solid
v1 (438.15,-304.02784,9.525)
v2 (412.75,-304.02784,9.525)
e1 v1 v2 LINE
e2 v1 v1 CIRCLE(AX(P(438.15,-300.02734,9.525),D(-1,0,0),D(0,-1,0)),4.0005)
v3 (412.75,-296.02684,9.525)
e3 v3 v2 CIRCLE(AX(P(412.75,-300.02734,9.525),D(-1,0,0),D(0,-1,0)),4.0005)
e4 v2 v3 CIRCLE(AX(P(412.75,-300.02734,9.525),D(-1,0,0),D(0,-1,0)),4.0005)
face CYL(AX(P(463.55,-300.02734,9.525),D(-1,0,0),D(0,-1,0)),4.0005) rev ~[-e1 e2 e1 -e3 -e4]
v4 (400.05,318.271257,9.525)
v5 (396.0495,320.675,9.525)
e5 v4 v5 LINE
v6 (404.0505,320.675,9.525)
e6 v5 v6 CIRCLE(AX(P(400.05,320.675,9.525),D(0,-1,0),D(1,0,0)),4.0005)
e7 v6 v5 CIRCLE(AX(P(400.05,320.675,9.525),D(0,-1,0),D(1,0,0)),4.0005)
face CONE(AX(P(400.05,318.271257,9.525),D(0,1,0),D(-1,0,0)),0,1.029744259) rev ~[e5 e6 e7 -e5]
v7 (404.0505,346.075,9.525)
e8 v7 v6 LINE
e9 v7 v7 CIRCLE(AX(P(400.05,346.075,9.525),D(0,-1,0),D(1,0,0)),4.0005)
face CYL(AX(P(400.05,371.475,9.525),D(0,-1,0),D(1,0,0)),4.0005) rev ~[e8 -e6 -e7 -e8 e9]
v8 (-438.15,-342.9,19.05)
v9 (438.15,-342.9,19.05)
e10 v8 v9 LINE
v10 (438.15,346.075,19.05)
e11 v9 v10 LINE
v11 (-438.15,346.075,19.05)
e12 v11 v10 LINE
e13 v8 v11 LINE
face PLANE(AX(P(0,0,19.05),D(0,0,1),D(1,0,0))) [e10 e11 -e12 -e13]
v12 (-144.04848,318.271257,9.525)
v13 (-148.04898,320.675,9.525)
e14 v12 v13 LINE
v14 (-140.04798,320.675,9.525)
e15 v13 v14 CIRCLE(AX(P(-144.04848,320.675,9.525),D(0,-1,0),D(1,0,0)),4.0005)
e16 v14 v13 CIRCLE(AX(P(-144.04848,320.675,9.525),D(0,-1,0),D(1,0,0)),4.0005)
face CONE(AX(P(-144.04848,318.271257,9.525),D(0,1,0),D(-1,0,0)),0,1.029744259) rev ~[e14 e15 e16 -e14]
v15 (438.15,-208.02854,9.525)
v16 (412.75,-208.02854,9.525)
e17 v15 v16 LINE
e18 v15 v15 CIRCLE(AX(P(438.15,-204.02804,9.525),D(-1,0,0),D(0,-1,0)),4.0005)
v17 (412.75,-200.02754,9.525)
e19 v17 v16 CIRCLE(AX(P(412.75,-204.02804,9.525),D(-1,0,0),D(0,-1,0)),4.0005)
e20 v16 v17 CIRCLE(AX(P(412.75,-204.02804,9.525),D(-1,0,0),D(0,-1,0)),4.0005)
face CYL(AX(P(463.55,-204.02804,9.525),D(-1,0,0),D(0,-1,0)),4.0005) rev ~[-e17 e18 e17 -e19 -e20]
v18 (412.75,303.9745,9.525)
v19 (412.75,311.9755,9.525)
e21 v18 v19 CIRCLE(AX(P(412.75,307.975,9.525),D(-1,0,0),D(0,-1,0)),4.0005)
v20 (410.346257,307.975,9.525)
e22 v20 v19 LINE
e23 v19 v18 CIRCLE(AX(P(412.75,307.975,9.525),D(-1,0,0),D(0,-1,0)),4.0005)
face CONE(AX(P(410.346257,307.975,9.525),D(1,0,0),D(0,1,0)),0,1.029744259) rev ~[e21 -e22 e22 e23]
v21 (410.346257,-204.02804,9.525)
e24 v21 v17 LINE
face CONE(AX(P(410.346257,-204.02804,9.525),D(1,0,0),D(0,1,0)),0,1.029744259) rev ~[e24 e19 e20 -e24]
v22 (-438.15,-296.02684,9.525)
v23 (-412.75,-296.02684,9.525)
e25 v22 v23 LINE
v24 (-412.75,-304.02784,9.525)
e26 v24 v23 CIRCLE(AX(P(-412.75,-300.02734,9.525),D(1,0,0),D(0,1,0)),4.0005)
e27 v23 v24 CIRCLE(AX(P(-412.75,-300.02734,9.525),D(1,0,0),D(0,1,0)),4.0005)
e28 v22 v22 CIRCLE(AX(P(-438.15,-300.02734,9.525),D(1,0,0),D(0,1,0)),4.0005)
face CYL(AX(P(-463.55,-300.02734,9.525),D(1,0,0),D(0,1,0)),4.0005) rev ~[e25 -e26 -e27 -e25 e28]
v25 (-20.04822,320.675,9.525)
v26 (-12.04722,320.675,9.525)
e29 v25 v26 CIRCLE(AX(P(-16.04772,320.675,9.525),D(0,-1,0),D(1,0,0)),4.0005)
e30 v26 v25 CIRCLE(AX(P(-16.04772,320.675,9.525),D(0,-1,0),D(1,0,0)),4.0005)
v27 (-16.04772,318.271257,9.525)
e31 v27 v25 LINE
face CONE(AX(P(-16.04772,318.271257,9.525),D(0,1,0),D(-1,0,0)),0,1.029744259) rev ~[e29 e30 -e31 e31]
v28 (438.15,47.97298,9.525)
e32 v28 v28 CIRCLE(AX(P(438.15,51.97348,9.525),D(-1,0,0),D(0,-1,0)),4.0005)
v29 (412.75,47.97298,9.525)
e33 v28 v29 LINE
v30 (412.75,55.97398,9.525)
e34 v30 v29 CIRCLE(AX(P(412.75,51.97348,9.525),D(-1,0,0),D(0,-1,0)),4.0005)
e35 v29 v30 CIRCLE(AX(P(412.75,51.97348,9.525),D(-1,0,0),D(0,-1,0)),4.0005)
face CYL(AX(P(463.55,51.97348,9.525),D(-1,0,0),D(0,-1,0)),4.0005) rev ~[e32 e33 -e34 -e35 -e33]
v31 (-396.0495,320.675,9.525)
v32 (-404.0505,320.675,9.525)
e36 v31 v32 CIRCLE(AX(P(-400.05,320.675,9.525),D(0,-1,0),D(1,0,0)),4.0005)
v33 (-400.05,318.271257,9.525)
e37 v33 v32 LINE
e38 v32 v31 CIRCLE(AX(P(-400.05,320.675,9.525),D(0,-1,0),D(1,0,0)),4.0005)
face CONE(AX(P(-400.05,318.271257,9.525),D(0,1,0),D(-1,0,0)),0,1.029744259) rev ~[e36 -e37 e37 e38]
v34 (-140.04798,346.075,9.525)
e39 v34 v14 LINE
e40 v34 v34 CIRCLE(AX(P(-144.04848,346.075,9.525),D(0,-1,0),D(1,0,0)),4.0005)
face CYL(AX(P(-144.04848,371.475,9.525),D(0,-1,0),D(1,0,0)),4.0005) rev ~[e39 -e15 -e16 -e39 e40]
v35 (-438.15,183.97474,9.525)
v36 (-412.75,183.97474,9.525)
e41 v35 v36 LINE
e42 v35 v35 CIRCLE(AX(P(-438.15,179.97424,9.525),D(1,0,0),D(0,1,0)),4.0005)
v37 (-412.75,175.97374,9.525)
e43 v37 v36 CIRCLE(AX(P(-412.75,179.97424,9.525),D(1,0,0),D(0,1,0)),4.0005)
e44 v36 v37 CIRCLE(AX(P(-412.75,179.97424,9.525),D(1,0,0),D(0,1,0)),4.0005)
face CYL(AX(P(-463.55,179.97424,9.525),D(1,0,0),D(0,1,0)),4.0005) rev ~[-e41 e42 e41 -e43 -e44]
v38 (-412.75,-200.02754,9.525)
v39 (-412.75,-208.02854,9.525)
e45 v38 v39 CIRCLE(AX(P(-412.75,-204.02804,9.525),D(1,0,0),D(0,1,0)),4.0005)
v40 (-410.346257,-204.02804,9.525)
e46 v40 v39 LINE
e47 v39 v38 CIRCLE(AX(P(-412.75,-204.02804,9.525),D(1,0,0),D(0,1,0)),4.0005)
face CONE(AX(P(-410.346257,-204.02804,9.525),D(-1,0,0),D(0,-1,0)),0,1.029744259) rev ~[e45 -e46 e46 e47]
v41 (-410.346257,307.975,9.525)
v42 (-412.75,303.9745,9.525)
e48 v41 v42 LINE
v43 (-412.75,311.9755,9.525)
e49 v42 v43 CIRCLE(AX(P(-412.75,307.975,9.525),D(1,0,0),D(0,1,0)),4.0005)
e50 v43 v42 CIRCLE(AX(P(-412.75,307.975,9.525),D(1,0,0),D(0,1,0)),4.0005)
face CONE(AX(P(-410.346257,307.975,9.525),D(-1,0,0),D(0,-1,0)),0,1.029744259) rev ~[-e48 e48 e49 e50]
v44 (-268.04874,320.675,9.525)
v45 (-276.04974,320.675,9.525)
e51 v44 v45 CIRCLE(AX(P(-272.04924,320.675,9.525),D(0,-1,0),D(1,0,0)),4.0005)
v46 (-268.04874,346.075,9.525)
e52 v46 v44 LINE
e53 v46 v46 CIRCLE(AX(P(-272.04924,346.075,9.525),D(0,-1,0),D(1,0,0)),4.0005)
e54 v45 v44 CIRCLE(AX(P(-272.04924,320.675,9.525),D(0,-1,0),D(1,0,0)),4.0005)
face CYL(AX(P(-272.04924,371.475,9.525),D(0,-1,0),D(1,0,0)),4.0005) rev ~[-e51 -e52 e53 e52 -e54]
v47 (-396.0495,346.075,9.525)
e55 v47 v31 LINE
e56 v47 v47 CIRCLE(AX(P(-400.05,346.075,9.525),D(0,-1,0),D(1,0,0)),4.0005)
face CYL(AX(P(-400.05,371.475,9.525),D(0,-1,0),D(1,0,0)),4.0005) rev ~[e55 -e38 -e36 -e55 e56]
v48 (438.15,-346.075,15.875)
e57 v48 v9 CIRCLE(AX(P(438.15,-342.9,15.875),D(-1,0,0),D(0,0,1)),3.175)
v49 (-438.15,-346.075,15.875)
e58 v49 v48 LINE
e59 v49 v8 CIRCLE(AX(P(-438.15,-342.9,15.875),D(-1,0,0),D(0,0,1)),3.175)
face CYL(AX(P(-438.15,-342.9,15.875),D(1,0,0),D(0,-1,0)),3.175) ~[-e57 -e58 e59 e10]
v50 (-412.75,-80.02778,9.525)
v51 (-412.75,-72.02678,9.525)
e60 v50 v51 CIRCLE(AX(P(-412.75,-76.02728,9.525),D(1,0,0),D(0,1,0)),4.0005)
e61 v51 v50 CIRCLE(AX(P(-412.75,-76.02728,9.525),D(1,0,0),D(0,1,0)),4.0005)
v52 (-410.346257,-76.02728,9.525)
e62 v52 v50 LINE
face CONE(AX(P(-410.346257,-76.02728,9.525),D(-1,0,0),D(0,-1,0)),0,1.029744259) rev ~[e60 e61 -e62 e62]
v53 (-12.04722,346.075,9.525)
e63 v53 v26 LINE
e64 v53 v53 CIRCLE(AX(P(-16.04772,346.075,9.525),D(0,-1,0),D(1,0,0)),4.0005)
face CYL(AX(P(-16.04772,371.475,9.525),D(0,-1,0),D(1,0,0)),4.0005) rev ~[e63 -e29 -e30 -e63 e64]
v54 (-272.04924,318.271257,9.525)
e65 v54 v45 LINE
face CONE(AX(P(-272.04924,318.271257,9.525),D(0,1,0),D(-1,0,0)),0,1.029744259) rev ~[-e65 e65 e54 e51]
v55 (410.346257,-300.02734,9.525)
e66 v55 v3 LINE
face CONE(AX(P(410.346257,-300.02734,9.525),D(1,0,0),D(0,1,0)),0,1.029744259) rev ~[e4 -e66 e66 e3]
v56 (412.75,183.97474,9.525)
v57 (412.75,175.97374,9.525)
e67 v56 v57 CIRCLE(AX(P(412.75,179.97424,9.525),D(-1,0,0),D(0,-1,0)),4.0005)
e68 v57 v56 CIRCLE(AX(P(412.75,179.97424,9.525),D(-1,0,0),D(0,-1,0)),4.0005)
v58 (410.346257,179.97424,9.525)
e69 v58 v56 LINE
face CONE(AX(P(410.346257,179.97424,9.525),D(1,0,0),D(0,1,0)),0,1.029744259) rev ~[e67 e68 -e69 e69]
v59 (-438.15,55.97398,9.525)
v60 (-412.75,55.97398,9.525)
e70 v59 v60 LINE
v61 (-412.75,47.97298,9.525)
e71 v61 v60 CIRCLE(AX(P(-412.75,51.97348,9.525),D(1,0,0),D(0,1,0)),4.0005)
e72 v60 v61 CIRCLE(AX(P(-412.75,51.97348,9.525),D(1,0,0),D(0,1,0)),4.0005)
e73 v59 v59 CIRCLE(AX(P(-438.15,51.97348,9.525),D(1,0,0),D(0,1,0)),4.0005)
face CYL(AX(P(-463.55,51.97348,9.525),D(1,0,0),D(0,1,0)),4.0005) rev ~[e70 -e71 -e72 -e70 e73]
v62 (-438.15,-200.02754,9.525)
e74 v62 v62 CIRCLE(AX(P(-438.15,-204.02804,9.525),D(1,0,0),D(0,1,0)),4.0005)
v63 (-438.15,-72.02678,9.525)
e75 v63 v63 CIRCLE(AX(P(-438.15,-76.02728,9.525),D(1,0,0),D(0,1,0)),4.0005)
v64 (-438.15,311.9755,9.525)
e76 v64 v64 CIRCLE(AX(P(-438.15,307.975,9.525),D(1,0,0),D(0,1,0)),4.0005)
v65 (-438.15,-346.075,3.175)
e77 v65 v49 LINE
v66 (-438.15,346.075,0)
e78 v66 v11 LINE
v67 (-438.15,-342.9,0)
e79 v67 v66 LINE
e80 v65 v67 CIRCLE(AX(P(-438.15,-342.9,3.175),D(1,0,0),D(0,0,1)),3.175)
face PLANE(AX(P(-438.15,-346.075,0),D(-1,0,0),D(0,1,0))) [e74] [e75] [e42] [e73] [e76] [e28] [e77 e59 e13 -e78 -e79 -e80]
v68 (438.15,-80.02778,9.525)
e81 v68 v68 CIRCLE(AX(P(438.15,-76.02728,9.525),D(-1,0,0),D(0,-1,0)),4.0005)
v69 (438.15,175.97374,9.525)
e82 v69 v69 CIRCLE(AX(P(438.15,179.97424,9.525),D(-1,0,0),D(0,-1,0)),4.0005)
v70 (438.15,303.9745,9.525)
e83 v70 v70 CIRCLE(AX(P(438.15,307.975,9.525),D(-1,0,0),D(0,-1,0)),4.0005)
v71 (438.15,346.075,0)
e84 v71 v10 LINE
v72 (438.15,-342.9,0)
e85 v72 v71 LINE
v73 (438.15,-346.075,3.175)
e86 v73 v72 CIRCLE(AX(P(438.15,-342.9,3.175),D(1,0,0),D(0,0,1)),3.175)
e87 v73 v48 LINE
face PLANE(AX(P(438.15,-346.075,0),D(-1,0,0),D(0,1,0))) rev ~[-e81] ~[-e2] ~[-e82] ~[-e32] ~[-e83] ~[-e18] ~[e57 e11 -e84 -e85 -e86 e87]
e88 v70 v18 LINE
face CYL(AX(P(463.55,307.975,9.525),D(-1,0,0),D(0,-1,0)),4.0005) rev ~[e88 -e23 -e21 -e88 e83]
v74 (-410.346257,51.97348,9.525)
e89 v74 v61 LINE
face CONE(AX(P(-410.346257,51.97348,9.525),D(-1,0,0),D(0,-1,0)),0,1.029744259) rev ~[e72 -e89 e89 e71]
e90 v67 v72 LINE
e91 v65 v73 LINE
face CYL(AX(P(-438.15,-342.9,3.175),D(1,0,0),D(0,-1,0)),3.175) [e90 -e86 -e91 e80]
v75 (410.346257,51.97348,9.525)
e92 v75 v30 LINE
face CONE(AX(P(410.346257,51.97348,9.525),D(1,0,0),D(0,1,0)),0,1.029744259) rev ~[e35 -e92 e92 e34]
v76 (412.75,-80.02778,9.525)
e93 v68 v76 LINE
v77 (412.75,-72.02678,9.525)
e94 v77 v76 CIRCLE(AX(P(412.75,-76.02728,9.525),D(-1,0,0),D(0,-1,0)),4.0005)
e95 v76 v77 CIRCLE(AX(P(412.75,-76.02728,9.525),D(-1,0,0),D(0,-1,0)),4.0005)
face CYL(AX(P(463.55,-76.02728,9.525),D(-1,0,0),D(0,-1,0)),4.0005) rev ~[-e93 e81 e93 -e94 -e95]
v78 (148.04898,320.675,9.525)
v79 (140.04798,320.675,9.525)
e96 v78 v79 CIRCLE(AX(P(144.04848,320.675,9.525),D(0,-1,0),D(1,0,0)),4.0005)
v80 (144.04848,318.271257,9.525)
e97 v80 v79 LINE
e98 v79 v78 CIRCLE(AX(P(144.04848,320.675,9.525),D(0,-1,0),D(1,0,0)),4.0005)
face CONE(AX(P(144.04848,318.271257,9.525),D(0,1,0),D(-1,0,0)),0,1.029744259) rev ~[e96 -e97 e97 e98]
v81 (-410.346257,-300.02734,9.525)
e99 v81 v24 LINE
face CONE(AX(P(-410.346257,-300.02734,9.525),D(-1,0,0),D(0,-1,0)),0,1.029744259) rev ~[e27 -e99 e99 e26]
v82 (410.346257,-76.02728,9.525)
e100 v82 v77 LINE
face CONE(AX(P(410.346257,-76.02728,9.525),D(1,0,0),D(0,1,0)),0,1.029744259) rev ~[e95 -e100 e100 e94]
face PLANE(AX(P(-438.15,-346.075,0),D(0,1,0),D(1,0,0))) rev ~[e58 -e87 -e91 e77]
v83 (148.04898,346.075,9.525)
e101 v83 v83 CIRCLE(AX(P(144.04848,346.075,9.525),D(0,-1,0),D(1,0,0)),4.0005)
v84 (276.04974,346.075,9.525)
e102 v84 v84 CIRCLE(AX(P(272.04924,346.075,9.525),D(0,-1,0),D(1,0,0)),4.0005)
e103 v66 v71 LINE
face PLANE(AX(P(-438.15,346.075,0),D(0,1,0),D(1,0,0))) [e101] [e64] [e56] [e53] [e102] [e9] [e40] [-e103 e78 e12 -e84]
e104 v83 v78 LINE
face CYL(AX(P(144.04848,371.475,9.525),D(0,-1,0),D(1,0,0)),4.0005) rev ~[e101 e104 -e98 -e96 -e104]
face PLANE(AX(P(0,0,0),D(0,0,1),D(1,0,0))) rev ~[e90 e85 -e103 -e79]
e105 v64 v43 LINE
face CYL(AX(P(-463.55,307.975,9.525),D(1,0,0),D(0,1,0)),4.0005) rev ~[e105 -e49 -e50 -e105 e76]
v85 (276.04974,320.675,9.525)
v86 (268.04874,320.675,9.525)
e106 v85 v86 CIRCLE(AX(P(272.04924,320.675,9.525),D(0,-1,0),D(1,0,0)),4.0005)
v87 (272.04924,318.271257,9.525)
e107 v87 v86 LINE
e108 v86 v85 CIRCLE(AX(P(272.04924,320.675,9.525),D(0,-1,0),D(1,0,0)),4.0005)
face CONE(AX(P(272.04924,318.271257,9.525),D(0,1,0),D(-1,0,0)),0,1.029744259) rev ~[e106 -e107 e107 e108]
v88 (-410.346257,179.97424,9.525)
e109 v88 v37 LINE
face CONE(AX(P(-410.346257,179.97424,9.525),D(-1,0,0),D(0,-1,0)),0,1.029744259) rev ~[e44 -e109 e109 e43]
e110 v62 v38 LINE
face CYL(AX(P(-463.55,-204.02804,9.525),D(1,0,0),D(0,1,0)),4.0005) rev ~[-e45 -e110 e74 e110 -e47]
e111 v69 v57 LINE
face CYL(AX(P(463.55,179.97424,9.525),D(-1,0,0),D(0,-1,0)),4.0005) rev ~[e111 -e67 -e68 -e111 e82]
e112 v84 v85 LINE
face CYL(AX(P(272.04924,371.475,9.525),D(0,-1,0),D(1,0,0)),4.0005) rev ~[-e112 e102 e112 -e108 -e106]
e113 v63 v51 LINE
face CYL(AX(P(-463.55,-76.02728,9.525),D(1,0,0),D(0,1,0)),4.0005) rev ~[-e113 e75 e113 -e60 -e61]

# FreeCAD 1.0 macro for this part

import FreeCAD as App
import Part
import Sketcher
Q = App.Units.Quantity


def edges_at(feature, points):
    """Names of the edges that pass closest to the given points."""
    edges = feature.Shape.Edges
    near = lambda p: min(range(len(edges)), key=lambda i: edges[i].distToShape(Part.Vertex(*p))[0])
    return sorted({f"Edge{near(p) + 1}" for p in points})

doc = App.newDocument("Part")
body = doc.addObject("PartDesign::Body", "Body")

sketch1 = body.newObject("Sketcher::SketchObject", "Sketch")
sketch1.AttachmentSupport = (doc.getObject("XY_Plane"), [""])
sketch1.MapMode = "FlatFace"
sketch1.addGeometry([
    Part.LineSegment(App.Vector(-438, 346, 0), App.Vector(-438, -346, 0)),
    Part.LineSegment(App.Vector(-438, -346, 0), App.Vector(438, -346, 0)),
    Part.LineSegment(App.Vector(438, -346, 0), App.Vector(438, 346, 0)),
    Part.LineSegment(App.Vector(438, 346, 0), App.Vector(-438, 346, 0)),
], False)
sketch1.addConstraint([
    Sketcher.Constraint("Coincident", 0, 2, 1, 1),
    Sketcher.Constraint("Coincident", 1, 2, 2, 1),
    Sketcher.Constraint("Coincident", 2, 2, 3, 1),
    Sketcher.Constraint("Coincident", 3, 2, 0, 1),
    Sketcher.Constraint("Vertical", 0),
    Sketcher.Constraint("Horizontal", 1),
    Sketcher.Constraint("Vertical", 2),
    Sketcher.Constraint("Horizontal", 3),
    Sketcher.Constraint("Symmetric", 0, 2, 2, 2, -1, 1),
    Sketcher.Constraint("DistanceX", 1, 1, 1, 2, Q("34.5 in")),
    Sketcher.Constraint("DistanceY", 0, 2, 0, 1, Q("27.25 in")),
])
pad1 = body.newObject("PartDesign::Pad", "Pad")
pad1.Profile = sketch1
pad1.Length = Q("0.75 in")
doc.recompute()

fillet = body.newObject("PartDesign::Fillet", "Fillet")
fillet.Base = (pad1, edges_at(pad1, [(0, -346.075, 19.05), (0, -346.075, 0)]))
fillet.Radius = Q("0.125 in")

sketch2 = body.newObject("Sketcher::SketchObject", "Sketch001")
sketch2.AttachmentSupport = (doc.getObject("YZ_Plane"), [""])
sketch2.MapMode = "FlatFace"
sketch2.AttachmentOffset = App.Placement(App.Vector(0, 0, 17.25 * 25.4), App.Rotation())
sketch2.addGeometry([
    Part.Circle(App.Vector(308, 9.5, 0), App.Vector(0, 0, 1), 4),
    Part.Circle(App.Vector(180, 9.5, 0), App.Vector(0, 0, 1), 4),
    Part.Circle(App.Vector(52, 9.5, 0), App.Vector(0, 0, 1), 4),
    Part.Circle(App.Vector(-76, 9.5, 0), App.Vector(0, 0, 1), 4),
    Part.Circle(App.Vector(-204, 9.5, 0), App.Vector(0, 0, 1), 4),
    Part.Circle(App.Vector(-300, 9.5, 0), App.Vector(0, 0, 1), 4),
], False)
sketch2.addConstraint([
    Sketcher.Constraint("Equal", 0, 1),
    Sketcher.Constraint("Equal", 1, 2),
    Sketcher.Constraint("Equal", 2, 3),
    Sketcher.Constraint("Equal", 3, 4),
    Sketcher.Constraint("Equal", 4, 5),
    Sketcher.Constraint("Horizontal", 0, 3, 1, 3),
    Sketcher.Constraint("Horizontal", 1, 3, 2, 3),
    Sketcher.Constraint("Horizontal", 2, 3, 3, 3),
    Sketcher.Constraint("Horizontal", 3, 3, 4, 3),
    Sketcher.Constraint("Horizontal", 4, 3, 5, 3),
    Sketcher.Constraint("Diameter", 0, Q("0.315 in")),
    Sketcher.Constraint("DistanceX", -1, 1, 0, 3, Q("12.125 in")),
    Sketcher.Constraint("DistanceY", -1, 1, 0, 3, Q("0.375 in")),
    Sketcher.Constraint("DistanceX", -1, 1, 1, 3, Q("7.0856 in")),
    Sketcher.Constraint("DistanceX", -1, 1, 2, 3, Q("2.0462 in")),
    Sketcher.Constraint("DistanceX", 3, 3, -1, 1, Q("2.9932 in")),
    Sketcher.Constraint("DistanceX", 4, 3, -1, 1, Q("8.0326 in")),
    Sketcher.Constraint("DistanceX", 5, 3, -1, 1, Q("11.8121 in")),
])
doc.recompute()
hole = body.newObject("PartDesign::Hole", "Hole")
hole.Profile = sketch2
hole.ThreadType = "None"
hole.Diameter = Q("0.315 in")
hole.DepthType = "Dimension"
hole.Depth = Q("1 in")
hole.DrillPoint = "Angled"
hole.DrillPointAngle = 118

sketch3 = body.newObject("Sketcher::SketchObject", "Sketch002")
sketch3.AttachmentSupport = (doc.getObject("YZ_Plane"), [""])
sketch3.MapMode = "FlatFace"
sketch3.AttachmentOffset = App.Placement(App.Vector(0, 0, -17.25 * 25.4), App.Rotation())
sketch3.addGeometry([
    Part.Circle(App.Vector(308, 9.5, 0), App.Vector(0, 0, 1), 4),
    Part.Circle(App.Vector(180, 9.5, 0), App.Vector(0, 0, 1), 4),
    Part.Circle(App.Vector(52, 9.5, 0), App.Vector(0, 0, 1), 4),
    Part.Circle(App.Vector(-76, 9.5, 0), App.Vector(0, 0, 1), 4),
    Part.Circle(App.Vector(-204, 9.5, 0), App.Vector(0, 0, 1), 4),
    Part.Circle(App.Vector(-300, 9.5, 0), App.Vector(0, 0, 1), 4),
], False)
sketch3.addConstraint([
    Sketcher.Constraint("Equal", 0, 1),
    Sketcher.Constraint("Equal", 1, 2),
    Sketcher.Constraint("Equal", 2, 3),
    Sketcher.Constraint("Equal", 3, 4),
    Sketcher.Constraint("Equal", 4, 5),
    Sketcher.Constraint("Horizontal", 0, 3, 1, 3),
    Sketcher.Constraint("Horizontal", 1, 3, 2, 3),
    Sketcher.Constraint("Horizontal", 2, 3, 3, 3),
    Sketcher.Constraint("Horizontal", 3, 3, 4, 3),
    Sketcher.Constraint("Horizontal", 4, 3, 5, 3),
    Sketcher.Constraint("Diameter", 0, Q("0.315 in")),
    Sketcher.Constraint("DistanceX", -1, 1, 0, 3, Q("12.125 in")),
    Sketcher.Constraint("DistanceY", -1, 1, 0, 3, Q("0.375 in")),
    Sketcher.Constraint("DistanceX", -1, 1, 1, 3, Q("7.0856 in")),
    Sketcher.Constraint("DistanceX", -1, 1, 2, 3, Q("2.0462 in")),
    Sketcher.Constraint("DistanceX", 3, 3, -1, 1, Q("2.9932 in")),
    Sketcher.Constraint("DistanceX", 4, 3, -1, 1, Q("8.0326 in")),
    Sketcher.Constraint("DistanceX", 5, 3, -1, 1, Q("11.8121 in")),
])
doc.recompute()
hole2 = body.newObject("PartDesign::Hole", "Hole001")
hole2.Profile = sketch3
hole2.ThreadType = "None"
hole2.Diameter = Q("0.315 in")
hole2.DepthType = "Dimension"
hole2.Depth = Q("1 in")
hole2.DrillPoint = "Angled"
hole2.DrillPointAngle = 118
hole2.Reversed = True

sketch4 = body.newObject("Sketcher::SketchObject", "Sketch003")
sketch4.AttachmentSupport = (doc.getObject("XZ_Plane"), [""])
sketch4.MapMode = "FlatFace"
sketch4.AttachmentOffset = App.Placement(App.Vector(0, 0, -13.625 * 25.4), App.Rotation())
sketch4.addGeometry([
    Part.Circle(App.Vector(400.1, 9.5, 0), App.Vector(0, 0, 1), 4),
    Part.Circle(App.Vector(272, 9.5, 0), App.Vector(0, 0, 1), 4),
    Part.Circle(App.Vector(144, 9.5, 0), App.Vector(0, 0, 1), 4),
    Part.Circle(App.Vector(-16, 9.5, 0), App.Vector(0, 0, 1), 4),
    Part.Circle(App.Vector(-144, 9.5, 0), App.Vector(0, 0, 1), 4),
    Part.Circle(App.Vector(-272, 9.5, 0), App.Vector(0, 0, 1), 4),
    Part.Circle(App.Vector(-400.1, 9.5, 0), App.Vector(0, 0, 1), 4),
], False)
sketch4.addConstraint([
    Sketcher.Constraint("Equal", 0, 1),
    Sketcher.Constraint("Equal", 1, 2),
    Sketcher.Constraint("Equal", 2, 3),
    Sketcher.Constraint("Equal", 3, 4),
    Sketcher.Constraint("Equal", 4, 5),
    Sketcher.Constraint("Equal", 5, 6),
    Sketcher.Constraint("Symmetric", 2, 3, 4, 3, -2),
    Sketcher.Constraint("Symmetric", 1, 3, 5, 3, -2),
    Sketcher.Constraint("Symmetric", 0, 3, 6, 3, -2),
    Sketcher.Constraint("Horizontal", 0, 3, 1, 3),
    Sketcher.Constraint("Horizontal", 1, 3, 2, 3),
    Sketcher.Constraint("Horizontal", 2, 3, 3, 3),
    Sketcher.Constraint("Diameter", 0, Q("0.315 in")),
    Sketcher.Constraint("DistanceX", -1, 1, 0, 3, Q("15.75 in")),
    Sketcher.Constraint("DistanceY", -1, 1, 0, 3, Q("0.375 in")),
    Sketcher.Constraint("DistanceX", 3, 3, 2, 3, Q("6.303 in")),
    Sketcher.Constraint("DistanceX", -1, 1, 1, 3, Q("10.7106 in")),
    Sketcher.Constraint("DistanceX", -1, 1, 2, 3, Q("5.6712 in")),
])
doc.recompute()
hole3 = body.newObject("PartDesign::Hole", "Hole002")
hole3.Profile = sketch4
hole3.ThreadType = "None"
hole3.Diameter = Q("0.315 in")
hole3.DepthType = "Dimension"
hole3.Depth = Q("1 in")
hole3.DrillPoint = "Angled"
hole3.DrillPointAngle = 118
hole3.Reversed = True

doc.recompute()
